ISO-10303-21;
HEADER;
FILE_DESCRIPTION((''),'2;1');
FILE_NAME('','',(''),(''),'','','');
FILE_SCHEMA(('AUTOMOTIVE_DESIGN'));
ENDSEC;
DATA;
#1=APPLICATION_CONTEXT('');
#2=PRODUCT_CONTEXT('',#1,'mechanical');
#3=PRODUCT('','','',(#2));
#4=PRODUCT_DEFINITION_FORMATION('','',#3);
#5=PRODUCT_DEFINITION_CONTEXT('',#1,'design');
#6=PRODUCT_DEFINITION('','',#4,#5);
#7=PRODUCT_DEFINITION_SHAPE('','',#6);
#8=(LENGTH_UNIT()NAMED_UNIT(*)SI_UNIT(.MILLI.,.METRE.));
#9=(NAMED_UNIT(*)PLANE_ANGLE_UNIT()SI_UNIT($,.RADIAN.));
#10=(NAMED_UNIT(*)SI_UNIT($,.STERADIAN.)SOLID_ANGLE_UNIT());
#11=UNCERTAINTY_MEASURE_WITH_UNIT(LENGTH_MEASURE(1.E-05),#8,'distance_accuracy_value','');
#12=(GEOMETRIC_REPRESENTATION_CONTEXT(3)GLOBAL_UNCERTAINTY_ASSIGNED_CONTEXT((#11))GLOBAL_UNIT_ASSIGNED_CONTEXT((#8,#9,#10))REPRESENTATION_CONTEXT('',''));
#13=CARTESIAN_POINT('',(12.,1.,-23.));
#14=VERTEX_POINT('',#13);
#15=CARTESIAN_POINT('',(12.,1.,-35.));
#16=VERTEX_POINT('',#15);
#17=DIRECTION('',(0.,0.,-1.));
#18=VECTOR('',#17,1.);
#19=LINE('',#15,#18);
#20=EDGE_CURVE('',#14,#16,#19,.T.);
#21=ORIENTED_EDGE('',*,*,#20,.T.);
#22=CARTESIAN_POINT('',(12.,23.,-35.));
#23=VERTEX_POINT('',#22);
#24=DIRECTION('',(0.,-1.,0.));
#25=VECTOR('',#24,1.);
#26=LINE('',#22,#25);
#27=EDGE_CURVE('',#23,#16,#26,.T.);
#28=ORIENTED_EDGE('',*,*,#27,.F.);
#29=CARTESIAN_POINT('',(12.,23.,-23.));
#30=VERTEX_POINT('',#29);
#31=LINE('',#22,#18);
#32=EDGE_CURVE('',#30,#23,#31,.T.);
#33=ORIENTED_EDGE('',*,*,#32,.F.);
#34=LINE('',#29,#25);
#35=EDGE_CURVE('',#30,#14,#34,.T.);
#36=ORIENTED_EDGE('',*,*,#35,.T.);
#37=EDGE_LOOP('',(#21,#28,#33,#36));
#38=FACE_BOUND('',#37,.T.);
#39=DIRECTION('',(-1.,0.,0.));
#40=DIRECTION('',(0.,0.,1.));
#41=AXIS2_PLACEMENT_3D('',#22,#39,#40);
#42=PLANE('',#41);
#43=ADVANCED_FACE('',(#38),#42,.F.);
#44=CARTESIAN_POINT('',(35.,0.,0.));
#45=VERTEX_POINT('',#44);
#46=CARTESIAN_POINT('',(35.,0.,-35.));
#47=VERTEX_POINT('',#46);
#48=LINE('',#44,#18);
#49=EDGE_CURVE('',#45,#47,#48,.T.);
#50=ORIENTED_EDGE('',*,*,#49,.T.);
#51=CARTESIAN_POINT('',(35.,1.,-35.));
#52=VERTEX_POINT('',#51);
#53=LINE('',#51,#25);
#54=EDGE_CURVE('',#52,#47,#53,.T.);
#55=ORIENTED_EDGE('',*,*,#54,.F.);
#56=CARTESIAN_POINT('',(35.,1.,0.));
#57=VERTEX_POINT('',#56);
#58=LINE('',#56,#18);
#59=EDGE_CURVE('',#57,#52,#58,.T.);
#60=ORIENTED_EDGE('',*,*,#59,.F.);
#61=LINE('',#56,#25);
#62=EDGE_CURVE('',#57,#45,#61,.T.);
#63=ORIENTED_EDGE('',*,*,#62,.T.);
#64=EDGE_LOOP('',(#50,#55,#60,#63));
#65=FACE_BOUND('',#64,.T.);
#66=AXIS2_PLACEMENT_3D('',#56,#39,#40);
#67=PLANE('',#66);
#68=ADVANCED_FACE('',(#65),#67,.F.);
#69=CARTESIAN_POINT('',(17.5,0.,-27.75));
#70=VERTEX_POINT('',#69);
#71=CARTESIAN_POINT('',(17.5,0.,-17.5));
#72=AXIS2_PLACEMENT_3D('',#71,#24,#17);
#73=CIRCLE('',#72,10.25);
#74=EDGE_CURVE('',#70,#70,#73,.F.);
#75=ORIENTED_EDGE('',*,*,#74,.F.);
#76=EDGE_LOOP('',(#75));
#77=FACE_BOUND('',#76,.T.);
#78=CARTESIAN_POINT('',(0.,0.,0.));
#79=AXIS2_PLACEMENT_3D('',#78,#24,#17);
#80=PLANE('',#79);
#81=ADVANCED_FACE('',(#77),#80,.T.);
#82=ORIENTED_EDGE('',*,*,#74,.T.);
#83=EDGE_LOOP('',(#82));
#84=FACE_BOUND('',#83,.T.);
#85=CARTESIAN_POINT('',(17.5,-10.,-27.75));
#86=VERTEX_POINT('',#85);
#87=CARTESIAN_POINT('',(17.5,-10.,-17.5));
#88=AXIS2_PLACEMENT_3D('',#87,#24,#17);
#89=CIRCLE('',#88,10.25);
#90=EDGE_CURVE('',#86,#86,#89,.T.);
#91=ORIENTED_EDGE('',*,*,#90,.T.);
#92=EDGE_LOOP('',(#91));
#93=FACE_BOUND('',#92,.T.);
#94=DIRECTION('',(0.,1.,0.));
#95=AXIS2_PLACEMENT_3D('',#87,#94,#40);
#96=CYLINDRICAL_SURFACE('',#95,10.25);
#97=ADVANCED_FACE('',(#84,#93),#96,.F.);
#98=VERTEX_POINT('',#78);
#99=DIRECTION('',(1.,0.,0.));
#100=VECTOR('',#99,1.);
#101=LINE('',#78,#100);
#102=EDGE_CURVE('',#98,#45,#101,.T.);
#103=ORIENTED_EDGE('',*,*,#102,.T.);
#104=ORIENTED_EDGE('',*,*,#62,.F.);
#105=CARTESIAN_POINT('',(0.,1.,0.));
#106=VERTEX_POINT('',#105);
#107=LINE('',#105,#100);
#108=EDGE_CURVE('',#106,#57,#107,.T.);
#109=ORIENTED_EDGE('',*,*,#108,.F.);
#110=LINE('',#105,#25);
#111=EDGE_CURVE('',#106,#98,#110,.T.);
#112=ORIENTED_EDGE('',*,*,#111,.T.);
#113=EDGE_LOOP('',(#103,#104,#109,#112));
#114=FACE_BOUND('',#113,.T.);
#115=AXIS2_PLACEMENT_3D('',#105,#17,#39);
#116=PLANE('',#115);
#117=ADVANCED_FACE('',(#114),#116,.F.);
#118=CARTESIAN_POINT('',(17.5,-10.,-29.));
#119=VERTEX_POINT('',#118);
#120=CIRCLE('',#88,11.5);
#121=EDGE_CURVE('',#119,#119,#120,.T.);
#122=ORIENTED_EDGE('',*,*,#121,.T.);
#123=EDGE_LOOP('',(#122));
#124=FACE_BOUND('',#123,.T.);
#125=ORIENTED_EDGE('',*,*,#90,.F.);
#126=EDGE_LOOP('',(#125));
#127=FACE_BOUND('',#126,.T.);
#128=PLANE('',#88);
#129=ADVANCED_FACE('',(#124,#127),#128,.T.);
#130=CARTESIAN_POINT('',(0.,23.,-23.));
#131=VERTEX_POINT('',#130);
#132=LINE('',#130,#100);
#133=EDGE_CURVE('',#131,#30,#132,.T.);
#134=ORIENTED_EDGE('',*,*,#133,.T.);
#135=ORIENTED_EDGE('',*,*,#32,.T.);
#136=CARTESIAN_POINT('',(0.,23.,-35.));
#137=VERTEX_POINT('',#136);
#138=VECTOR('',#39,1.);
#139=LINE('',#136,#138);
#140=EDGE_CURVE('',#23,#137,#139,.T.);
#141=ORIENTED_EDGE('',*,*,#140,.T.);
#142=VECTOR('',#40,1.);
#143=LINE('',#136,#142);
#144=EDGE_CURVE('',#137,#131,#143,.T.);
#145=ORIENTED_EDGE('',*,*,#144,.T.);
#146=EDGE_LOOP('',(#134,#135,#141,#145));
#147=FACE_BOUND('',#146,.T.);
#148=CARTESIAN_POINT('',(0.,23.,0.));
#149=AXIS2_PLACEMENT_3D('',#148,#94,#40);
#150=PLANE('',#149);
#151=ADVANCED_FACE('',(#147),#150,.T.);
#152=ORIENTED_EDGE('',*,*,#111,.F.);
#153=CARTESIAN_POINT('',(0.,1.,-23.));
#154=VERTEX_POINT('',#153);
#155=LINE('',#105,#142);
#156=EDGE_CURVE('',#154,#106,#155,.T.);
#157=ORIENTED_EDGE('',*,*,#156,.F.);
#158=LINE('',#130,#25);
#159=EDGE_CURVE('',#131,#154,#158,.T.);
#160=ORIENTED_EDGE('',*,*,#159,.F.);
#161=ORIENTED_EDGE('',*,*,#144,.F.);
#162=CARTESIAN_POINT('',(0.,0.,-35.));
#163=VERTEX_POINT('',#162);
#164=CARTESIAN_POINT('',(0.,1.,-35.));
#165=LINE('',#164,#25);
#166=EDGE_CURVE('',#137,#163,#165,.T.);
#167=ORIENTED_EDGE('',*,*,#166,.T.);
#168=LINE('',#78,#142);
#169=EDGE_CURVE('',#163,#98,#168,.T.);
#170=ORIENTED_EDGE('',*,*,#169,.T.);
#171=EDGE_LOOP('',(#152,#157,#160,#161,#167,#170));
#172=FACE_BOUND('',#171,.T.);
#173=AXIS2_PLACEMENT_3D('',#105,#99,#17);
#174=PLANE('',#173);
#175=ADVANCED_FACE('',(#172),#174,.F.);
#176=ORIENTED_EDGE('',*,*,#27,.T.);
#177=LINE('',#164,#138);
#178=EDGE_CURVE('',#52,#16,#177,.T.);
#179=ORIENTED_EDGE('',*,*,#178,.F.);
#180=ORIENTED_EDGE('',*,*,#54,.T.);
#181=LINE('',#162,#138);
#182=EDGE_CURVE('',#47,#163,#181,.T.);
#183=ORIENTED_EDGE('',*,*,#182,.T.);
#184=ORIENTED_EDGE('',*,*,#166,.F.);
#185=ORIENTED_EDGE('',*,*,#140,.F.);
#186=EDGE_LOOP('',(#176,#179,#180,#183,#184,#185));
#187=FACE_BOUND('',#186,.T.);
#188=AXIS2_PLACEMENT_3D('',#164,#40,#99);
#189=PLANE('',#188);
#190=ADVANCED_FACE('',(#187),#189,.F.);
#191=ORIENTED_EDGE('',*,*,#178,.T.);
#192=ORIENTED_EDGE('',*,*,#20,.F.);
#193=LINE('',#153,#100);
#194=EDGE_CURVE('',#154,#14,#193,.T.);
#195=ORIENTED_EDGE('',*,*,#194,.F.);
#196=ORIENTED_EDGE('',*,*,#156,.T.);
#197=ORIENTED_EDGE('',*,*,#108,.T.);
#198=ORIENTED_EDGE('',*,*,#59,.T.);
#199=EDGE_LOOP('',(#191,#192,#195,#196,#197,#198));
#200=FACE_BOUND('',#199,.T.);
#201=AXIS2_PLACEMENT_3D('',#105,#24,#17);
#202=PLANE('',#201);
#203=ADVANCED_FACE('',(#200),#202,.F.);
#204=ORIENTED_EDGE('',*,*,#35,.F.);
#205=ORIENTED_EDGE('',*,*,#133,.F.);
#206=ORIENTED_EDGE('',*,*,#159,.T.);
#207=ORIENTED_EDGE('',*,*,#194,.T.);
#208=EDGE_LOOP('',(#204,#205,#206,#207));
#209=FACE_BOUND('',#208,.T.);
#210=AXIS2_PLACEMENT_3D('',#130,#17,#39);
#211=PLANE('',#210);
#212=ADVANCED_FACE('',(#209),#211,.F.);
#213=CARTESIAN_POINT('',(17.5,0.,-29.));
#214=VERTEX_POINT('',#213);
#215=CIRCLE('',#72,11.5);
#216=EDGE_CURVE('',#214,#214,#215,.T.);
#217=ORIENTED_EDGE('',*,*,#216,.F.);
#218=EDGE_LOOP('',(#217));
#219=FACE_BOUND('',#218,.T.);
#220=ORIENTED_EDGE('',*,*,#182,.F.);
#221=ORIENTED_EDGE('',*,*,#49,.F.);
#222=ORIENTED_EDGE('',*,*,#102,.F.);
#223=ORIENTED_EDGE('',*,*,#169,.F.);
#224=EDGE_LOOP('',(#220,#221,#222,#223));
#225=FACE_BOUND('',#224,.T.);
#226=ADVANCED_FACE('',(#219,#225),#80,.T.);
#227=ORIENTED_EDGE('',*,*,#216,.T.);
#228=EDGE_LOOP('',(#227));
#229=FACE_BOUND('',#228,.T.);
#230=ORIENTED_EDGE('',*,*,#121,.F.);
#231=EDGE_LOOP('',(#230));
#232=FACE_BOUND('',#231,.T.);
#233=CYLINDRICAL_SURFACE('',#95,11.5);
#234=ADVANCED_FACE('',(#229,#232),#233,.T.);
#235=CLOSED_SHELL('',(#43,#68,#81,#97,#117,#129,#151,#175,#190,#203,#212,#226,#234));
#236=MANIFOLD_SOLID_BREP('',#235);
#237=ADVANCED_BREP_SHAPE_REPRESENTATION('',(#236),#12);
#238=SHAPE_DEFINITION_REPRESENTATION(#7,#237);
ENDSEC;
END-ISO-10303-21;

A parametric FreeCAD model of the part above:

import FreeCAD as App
import Part
import Sketcher

V = App.Vector

doc = App.newDocument("Part")
params = doc.addObject("Spreadsheet::Sheet", "Params")
for row, (alias, value) in enumerate([
    ("sketch1_width", "35 mm"),
    ("pad1_length", "1 mm"),
    ("sketch2_width", "12 mm"),
    ("pad2_length", "22 mm"),
    ("sketch3_diameter", "23 mm"),
    ("sketch3_diameter2", "20.5 mm"),
    ("pad3_length", "10 mm"),
], start=1):
    params.set(f"A{row}", alias)
    params.set(f"B{row}", "=" + value)
    params.setAlias(f"B{row}", alias)

body = doc.addObject("PartDesign::Body", "Body")

# Sketch on XZ plane
sketch1 = body.newObject("Sketcher::SketchObject", "Sketch")
sketch1.AttachmentSupport = (doc.getObject("XZ_Plane"), [""])
sketch1.MapMode = "FlatFace"
sketch1.addGeometry([
    Part.LineSegment(V(0, -35, 0), V(0, 0, 0)),
    Part.LineSegment(V(0, 0, 0), V(35, 0, 0)),
    Part.LineSegment(V(35, 0, 0), V(35, -35, 0)),
    Part.LineSegment(V(35, -35, 0), V(0, -35, 0)),
], False)
sketch1.addConstraint([
    Sketcher.Constraint("Coincident", 0, 2, 1, 1),
    Sketcher.Constraint("Coincident", 1, 2, 2, 1),
    Sketcher.Constraint("Coincident", 2, 2, 3, 1),
    Sketcher.Constraint("Coincident", 3, 2, 0, 1),
    Sketcher.Constraint("Vertical", 0),
    Sketcher.Constraint("Horizontal", 1),
    Sketcher.Constraint("Vertical", 2),
    Sketcher.Constraint("Horizontal", 3),
    Sketcher.Constraint("Coincident", 0, 2, -1, 1),
    Sketcher.Constraint("Equal", 3, 0),
    Sketcher.Constraint("DistanceX", 1, 1, 1, 2, 35.0),
])
sketch1.setExpression("Constraints[10]", "Params.sketch1_width")
pad1 = body.newObject("PartDesign::Pad", "Pad")
pad1.Profile = sketch1
pad1.setExpression("Length", "Params.pad1_length")
pad1.Reversed = True

# Sketch on XZ plane
sketch2 = body.newObject("Sketcher::SketchObject", "Sketch001")
sketch2.AttachmentSupport = (doc.getObject("XZ_Plane"), [""])
sketch2.MapMode = "FlatFace"
sketch2.AttachmentOffset = App.Placement(V(0, 0, -1), App.Rotation())
sketch2.addGeometry([
    Part.LineSegment(V(0, -35, 0), V(0, -23, 0)),
    Part.LineSegment(V(0, -23, 0), V(12, -23, 0)),
    Part.LineSegment(V(12, -23, 0), V(12, -35, 0)),
    Part.LineSegment(V(12, -35, 0), V(0, -35, 0)),
], False)
sketch2.addConstraint([
    Sketcher.Constraint("Coincident", 0, 2, 1, 1),
    Sketcher.Constraint("Coincident", 1, 2, 2, 1),
    Sketcher.Constraint("Coincident", 2, 2, 3, 1),
    Sketcher.Constraint("Coincident", 3, 2, 0, 1),
    Sketcher.Constraint("Vertical", 0),
    Sketcher.Constraint("Horizontal", 1),
    Sketcher.Constraint("Vertical", 2),
    Sketcher.Constraint("Horizontal", 3),
    Sketcher.Constraint("PointOnObject", 0, 2, -2),
    Sketcher.Constraint("Equal", 3, 0),
    Sketcher.Constraint("DistanceX", 1, 1, 1, 2, 12.0),
    Sketcher.Constraint("DistanceY", 0, 2, -1, 1, 23.0),
])
sketch2.setExpression("Constraints[10]", "Params.sketch2_width")
pad2 = body.newObject("PartDesign::Pad", "Pad001")
pad2.Profile = sketch2
pad2.setExpression("Length", "Params.pad2_length")
pad2.Reversed = True

# Sketch on XZ plane
sketch3 = body.newObject("Sketcher::SketchObject", "Sketch002")
sketch3.AttachmentSupport = (doc.getObject("XZ_Plane"), [""])
sketch3.MapMode = "FlatFace"
sketch3.addGeometry([
    Part.Circle(V(18, -18, 0), V(0, 0, 1), 12),
    Part.Circle(V(18, -18, 0), V(0, 0, 1), 10),
], False)
sketch3.addConstraint([
    Sketcher.Constraint("Coincident", 1, 3, 0, 3),
    Sketcher.Constraint("Diameter", 0, 23.0),
    Sketcher.Constraint("Diameter", 1, 20.5),
    Sketcher.Constraint("DistanceX", -1, 1, 0, 3, 17.5),
    Sketcher.Constraint("DistanceY", 0, 3, -1, 1, 17.5),
])
sketch3.setExpression("Constraints[1]", "Params.sketch3_diameter")
sketch3.setExpression("Constraints[2]", "Params.sketch3_diameter2")
pad3 = body.newObject("PartDesign::Pad", "Pad002")
pad3.Profile = sketch3
pad3.setExpression("Length", "Params.pad3_length")

doc.recompute()
